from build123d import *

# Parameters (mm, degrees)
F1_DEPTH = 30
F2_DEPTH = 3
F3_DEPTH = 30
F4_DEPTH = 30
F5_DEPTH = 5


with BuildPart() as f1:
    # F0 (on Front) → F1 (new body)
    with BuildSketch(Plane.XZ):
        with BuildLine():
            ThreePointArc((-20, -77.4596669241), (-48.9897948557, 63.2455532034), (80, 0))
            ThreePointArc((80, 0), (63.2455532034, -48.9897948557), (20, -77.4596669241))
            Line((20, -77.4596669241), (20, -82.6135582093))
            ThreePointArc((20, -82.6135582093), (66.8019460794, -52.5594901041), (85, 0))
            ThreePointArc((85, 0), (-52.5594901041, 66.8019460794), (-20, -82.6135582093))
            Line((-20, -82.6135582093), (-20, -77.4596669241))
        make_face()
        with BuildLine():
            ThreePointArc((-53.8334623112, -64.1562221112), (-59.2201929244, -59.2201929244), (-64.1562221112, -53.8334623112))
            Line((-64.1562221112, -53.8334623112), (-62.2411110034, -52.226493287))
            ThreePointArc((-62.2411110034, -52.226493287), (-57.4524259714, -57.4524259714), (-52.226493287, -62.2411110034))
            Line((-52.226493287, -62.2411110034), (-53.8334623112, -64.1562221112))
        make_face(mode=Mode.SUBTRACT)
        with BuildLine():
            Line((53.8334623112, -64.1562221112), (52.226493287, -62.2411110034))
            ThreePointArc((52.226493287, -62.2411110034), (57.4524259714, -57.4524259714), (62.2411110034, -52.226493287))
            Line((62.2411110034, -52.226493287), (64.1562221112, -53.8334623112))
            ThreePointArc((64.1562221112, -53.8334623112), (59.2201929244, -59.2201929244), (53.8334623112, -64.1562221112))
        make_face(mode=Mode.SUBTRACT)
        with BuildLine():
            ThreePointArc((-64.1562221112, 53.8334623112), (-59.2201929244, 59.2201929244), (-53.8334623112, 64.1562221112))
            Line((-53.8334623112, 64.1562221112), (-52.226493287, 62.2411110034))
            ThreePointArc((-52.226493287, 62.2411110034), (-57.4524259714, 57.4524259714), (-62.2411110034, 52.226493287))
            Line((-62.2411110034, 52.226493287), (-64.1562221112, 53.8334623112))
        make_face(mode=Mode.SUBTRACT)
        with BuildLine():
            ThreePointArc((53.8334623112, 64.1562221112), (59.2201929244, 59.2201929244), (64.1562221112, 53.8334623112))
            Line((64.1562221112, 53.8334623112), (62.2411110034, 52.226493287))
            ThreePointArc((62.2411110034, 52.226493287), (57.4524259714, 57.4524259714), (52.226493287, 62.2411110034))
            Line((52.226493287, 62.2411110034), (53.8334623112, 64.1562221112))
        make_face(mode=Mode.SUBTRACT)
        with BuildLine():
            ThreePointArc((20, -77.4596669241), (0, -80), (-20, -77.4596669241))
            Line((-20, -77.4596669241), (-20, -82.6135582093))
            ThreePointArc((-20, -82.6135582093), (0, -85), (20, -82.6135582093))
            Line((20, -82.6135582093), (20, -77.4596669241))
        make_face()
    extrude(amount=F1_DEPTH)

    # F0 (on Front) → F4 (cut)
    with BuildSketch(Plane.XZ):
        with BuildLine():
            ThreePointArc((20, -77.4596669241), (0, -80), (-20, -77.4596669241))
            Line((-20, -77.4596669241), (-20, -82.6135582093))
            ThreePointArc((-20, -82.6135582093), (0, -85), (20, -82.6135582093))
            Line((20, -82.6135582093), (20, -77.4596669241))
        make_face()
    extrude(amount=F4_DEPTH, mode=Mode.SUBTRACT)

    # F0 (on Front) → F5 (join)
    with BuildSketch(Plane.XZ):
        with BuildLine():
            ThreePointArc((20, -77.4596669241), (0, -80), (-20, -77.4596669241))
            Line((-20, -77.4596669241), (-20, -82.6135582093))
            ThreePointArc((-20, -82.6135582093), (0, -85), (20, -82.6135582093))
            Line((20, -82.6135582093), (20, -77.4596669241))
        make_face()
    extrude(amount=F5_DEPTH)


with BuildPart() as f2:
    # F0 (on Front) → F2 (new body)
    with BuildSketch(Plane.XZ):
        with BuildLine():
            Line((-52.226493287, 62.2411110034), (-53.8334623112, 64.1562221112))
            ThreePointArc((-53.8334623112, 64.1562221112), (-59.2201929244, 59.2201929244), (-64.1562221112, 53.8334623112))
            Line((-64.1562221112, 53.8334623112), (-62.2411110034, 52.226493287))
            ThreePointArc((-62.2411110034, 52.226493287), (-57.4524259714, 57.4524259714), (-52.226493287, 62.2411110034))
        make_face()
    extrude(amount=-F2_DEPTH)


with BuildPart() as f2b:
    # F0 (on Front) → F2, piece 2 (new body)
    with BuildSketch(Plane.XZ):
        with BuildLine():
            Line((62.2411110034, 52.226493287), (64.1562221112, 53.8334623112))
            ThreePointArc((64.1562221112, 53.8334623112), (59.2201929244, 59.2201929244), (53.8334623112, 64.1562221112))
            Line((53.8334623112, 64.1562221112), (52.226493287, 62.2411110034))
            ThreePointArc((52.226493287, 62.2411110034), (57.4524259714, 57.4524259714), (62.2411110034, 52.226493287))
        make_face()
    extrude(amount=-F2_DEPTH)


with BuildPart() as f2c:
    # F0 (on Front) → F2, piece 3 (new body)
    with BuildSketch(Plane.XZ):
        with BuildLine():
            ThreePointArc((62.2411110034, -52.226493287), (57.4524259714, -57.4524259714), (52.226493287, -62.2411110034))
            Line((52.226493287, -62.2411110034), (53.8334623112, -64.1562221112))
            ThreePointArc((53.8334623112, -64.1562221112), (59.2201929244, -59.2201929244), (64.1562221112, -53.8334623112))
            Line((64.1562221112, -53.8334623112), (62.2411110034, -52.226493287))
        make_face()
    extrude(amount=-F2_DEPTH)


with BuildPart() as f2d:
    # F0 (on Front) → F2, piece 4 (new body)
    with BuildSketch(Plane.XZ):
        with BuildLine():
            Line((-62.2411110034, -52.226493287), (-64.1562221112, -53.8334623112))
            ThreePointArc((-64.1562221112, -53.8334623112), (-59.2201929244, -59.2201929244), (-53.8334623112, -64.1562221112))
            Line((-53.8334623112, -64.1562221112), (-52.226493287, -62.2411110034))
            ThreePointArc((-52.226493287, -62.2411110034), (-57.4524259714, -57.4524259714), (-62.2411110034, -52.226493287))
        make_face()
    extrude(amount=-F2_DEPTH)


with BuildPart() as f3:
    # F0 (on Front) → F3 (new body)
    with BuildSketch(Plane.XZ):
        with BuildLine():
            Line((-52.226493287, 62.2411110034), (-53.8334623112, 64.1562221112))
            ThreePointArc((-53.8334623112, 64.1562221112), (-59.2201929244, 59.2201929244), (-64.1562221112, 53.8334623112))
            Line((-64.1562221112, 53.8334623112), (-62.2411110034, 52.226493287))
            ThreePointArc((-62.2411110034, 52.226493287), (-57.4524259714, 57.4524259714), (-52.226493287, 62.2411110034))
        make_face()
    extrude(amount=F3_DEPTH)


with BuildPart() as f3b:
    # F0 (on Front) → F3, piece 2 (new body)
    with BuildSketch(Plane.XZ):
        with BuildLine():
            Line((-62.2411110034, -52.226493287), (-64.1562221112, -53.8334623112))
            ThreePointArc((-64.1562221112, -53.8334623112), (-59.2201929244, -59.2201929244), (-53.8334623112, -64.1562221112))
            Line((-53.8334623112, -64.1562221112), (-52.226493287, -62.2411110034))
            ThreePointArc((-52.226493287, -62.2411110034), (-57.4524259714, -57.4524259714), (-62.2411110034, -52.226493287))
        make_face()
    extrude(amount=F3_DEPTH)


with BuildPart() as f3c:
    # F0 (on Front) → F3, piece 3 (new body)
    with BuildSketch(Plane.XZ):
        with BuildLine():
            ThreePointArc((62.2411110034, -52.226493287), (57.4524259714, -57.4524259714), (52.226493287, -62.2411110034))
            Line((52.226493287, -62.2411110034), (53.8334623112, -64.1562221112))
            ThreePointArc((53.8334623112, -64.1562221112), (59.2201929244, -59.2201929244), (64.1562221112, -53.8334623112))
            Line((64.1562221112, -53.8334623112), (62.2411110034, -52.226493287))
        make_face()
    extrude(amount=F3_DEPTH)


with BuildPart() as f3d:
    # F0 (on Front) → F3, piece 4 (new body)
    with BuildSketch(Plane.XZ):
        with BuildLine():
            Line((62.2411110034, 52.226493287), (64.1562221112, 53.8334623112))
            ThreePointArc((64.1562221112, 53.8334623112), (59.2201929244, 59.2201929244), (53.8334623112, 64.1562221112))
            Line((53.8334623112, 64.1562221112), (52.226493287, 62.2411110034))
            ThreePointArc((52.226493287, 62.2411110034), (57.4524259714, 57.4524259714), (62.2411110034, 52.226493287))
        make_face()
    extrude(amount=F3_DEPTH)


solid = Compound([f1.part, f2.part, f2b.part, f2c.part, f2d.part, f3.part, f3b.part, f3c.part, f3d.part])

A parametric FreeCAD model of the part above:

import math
import FreeCAD as App
import Part
import Sketcher
from FreeCAD import Vector
Q = App.Units.Quantity

doc = App.newDocument("Part")
body = doc.addObject("PartDesign::Body", "Body")

sketch1 = body.newObject("Sketcher::SketchObject", "Sketch")
sketch1.AttachmentSupport = (doc.getObject("XZ_Plane"), [""])
sketch1.MapMode = "FlatFace"
sketch1.addGeometry([
    Part.Circle(Vector(0, 0, 0), Vector(0, 0, 1), 85),
    Part.ArcOfCircle(Part.Circle(Vector(0, 0, 0), Vector(0, 0, 1), 80), math.radians(0), math.radians(256)),
    Part.ArcOfCircle(Part.Circle(Vector(0, 0, 0), Vector(0, 0, 1), 80), math.radians(-76), math.radians(0)),
    Part.ArcOfCircle(Part.Circle(Vector(0, 0, 0), Vector(0, 0, 1), 80), math.radians(-104), math.radians(-76)),
    Part.LineSegment(Vector(-52.2, -62.2, 0), Vector(-53.8, -64.2, 0)),
    Part.ArcOfCircle(Part.Circle(Vector(0, 0, 0), Vector(0, 0, 1), 83.7), math.radians(-140), math.radians(-130)),
    Part.LineSegment(Vector(-64.2, -53.8, 0), Vector(-62.2, -52.2, 0)),
    Part.ArcOfCircle(Part.Circle(Vector(0, 0, 0), Vector(0, 0, 1), 81.2), math.radians(-140), math.radians(-130)),
    Part.ArcOfCircle(Part.Circle(Vector(0, 0, 0), Vector(0, 0, 1), 83.7), math.radians(-50), math.radians(-40)),
    Part.LineSegment(Vector(53.8, -64.2, 0), Vector(52.2, -62.2, 0)),
    Part.ArcOfCircle(Part.Circle(Vector(0, 0, 0), Vector(0, 0, 1), 81.2), math.radians(-50), math.radians(-40)),
    Part.LineSegment(Vector(62.2, -52.2, 0), Vector(64.2, -53.8, 0)),
    Part.LineSegment(Vector(-62.2, 52.2, 0), Vector(-64.2, 53.8, 0)),
    Part.ArcOfCircle(Part.Circle(Vector(0, 0, 0), Vector(0, 0, 1), 83.7), math.radians(130), math.radians(140)),
    Part.LineSegment(Vector(-53.8, 64.2, 0), Vector(-52.2, 62.2, 0)),
    Part.ArcOfCircle(Part.Circle(Vector(0, 0, 0), Vector(0, 0, 1), 81.2), math.radians(130), math.radians(140)),
    Part.LineSegment(Vector(52.2, 62.2, 0), Vector(53.8, 64.2, 0)),
    Part.ArcOfCircle(Part.Circle(Vector(0, 0, 0), Vector(0, 0, 1), 83.7), math.radians(40), math.radians(50)),
    Part.LineSegment(Vector(64.2, 53.8, 0), Vector(62.2, 52.2, 0)),
    Part.ArcOfCircle(Part.Circle(Vector(0, 0, 0), Vector(0, 0, 1), 81.2), math.radians(40), math.radians(50)),
], False)
sketch1.addConstraint([
    Sketcher.Constraint("Tangent", 1, 1, 2, 2),
    Sketcher.Constraint("Tangent", 2, 1, 3, 2),
    Sketcher.Constraint("Tangent", 3, 1, 1, 2),
    Sketcher.Constraint("Coincident", 4, 2, 5, 2),
    Sketcher.Constraint("Coincident", 5, 1, 6, 1),
    Sketcher.Constraint("Coincident", 6, 2, 7, 1),
    Sketcher.Constraint("Coincident", 7, 2, 4, 1),
    Sketcher.Constraint("Coincident", 8, 1, 9, 1),
    Sketcher.Constraint("Coincident", 9, 2, 10, 1),
    Sketcher.Constraint("Coincident", 10, 2, 11, 1),
    Sketcher.Constraint("Coincident", 11, 2, 8, 2),
    Sketcher.Constraint("Coincident", 12, 2, 13, 2),
    Sketcher.Constraint("Coincident", 13, 1, 14, 1),
    Sketcher.Constraint("Coincident", 14, 2, 15, 1),
    Sketcher.Constraint("Coincident", 15, 2, 12, 1),
    Sketcher.Constraint("Coincident", 16, 2, 17, 2),
    Sketcher.Constraint("Coincident", 17, 1, 18, 1),
    Sketcher.Constraint("Coincident", 18, 2, 19, 1),
    Sketcher.Constraint("Coincident", 19, 2, 16, 1),
    Sketcher.Constraint("Coincident", 0, 3, -1, 1),
    Sketcher.Constraint("Coincident", 1, 3, -1, 1),
    Sketcher.Constraint("Coincident", 5, 3, -1, 1),
    Sketcher.Constraint("Coincident", 7, 3, -1, 1),
    Sketcher.Constraint("Coincident", 8, 3, -1, 1),
    Sketcher.Constraint("Coincident", 10, 3, -1, 1),
    Sketcher.Constraint("Coincident", 13, 3, -1, 1),
    Sketcher.Constraint("Coincident", 15, 3, -1, 1),
    Sketcher.Constraint("Coincident", 17, 3, -1, 1),
    Sketcher.Constraint("Coincident", 19, 3, -1, 1),
    Sketcher.Constraint("Equal", 5, 8),
    Sketcher.Constraint("Equal", 7, 10),
    Sketcher.Constraint("Equal", 8, 13),
    Sketcher.Constraint("Equal", 10, 15),
    Sketcher.Constraint("Equal", 13, 17),
    Sketcher.Constraint("Equal", 15, 19),
    Sketcher.Constraint("PointOnObject", 1, 1, -1),
    Sketcher.Constraint("Perpendicular", 6, 9),
    Sketcher.Constraint("Perpendicular", 4, 11),
    Sketcher.Constraint("Parallel", 11, 12),
    Sketcher.Constraint("Parallel", 9, 14),
    Sketcher.Constraint("Perpendicular", 12, 16),
    Sketcher.Constraint("Perpendicular", 14, 18),
    Sketcher.Constraint("Horizontal", 2, 1, 3, 1),
    Sketcher.Constraint("Horizontal", 4, 2, 8, 1),
    Sketcher.Constraint("Horizontal", 7, 2, 9, 2),
    Sketcher.Constraint("Horizontal", 6, 2, 10, 2),
    Sketcher.Constraint("Horizontal", 13, 1, 16, 2),
    Sketcher.Constraint("Horizontal", 12, 2, 17, 1),
    Sketcher.Constraint("Vertical", 5, 1, 12, 2),
    Sketcher.Constraint("Vertical", 4, 2, 13, 1),
    Sketcher.Constraint("Diameter", 0, 170.0),
    Sketcher.Constraint("Radius", 1, 80.0),
    Sketcher.Constraint("Angle", 4, Q("-130 deg")),
    Sketcher.Constraint("Radius", 5, 83.75),
    Sketcher.Constraint("Radius", 7, 81.25),
    Sketcher.Constraint("DistanceX", -1, 1, 2, 1, 20.0),
    Sketcher.Constraint("DistanceX", 6, 2, -1, 1, 62.241111),
    Sketcher.Constraint("DistanceY", 7, 2, -1, 1, 62.241111),
])
pad1 = body.newObject("PartDesign::Pad", "Pad")
pad1.Profile = sketch1
pad1.Length = 30

sketch2 = body.newObject("Sketcher::SketchObject", "Sketch001")
sketch2.AttachmentSupport = (doc.getObject("XZ_Plane"), [""])
sketch2.MapMode = "FlatFace"
sketch2.addGeometry([
    Part.ArcOfCircle(Part.Circle(Vector(0, 0, 0), Vector(0, 0, 1), 80), math.radians(-104), math.radians(-76)),
    Part.LineSegment(Vector(-20, -77, 0), Vector(-20, -83, 0)),
    Part.ArcOfCircle(Part.Circle(Vector(0, 0, 0), Vector(0, 0, 1), 85), math.radians(-104), math.radians(-76)),
    Part.LineSegment(Vector(20, -83, 0), Vector(20, -77, 0)),
], False)
sketch2.addConstraint([
    Sketcher.Constraint("Coincident", 0, 1, 1, 1),
    Sketcher.Constraint("Coincident", 1, 2, 2, 1),
    Sketcher.Constraint("Coincident", 2, 2, 3, 1),
    Sketcher.Constraint("Coincident", 3, 2, 0, 2),
    Sketcher.Constraint("Vertical", 1),
    Sketcher.Constraint("Vertical", 3),
    Sketcher.Constraint("Coincident", 0, 3, -1, 1),
    Sketcher.Constraint("Coincident", 2, 3, -1, 1),
    Sketcher.Constraint("Horizontal", 1, 2, 2, 2),
    Sketcher.Constraint("Radius", 0, 80.0),
    Sketcher.Constraint("Radius", 2, 85.0),
    Sketcher.Constraint("DistanceX", 0, 1, -1, 1, 20.0),
])
pocket1 = body.newObject("PartDesign::Pocket", "Pocket")
pocket1.Profile = sketch2
pocket1.Length = 30
pocket1.Reversed = True

sketch3 = body.newObject("Sketcher::SketchObject", "Sketch002")
sketch3.AttachmentSupport = (doc.getObject("XZ_Plane"), [""])
sketch3.MapMode = "FlatFace"
sketch3.addGeometry([
    Part.ArcOfCircle(Part.Circle(Vector(0, 0, 0), Vector(0, 0, 1), 80), math.radians(-104), math.radians(-76)),
    Part.LineSegment(Vector(-20, -77, 0), Vector(-20, -83, 0)),
    Part.ArcOfCircle(Part.Circle(Vector(0, 0, 0), Vector(0, 0, 1), 85), math.radians(-104), math.radians(-76)),
    Part.LineSegment(Vector(20, -83, 0), Vector(20, -77, 0)),
], False)
sketch3.addConstraint([
    Sketcher.Constraint("Coincident", 0, 1, 1, 1),
    Sketcher.Constraint("Coincident", 1, 2, 2, 1),
    Sketcher.Constraint("Coincident", 2, 2, 3, 1),
    Sketcher.Constraint("Coincident", 3, 2, 0, 2),
    Sketcher.Constraint("Vertical", 1),
    Sketcher.Constraint("Vertical", 3),
    Sketcher.Constraint("Coincident", 0, 3, -1, 1),
    Sketcher.Constraint("Coincident", 2, 3, -1, 1),
    Sketcher.Constraint("Horizontal", 1, 2, 2, 2),
    Sketcher.Constraint("Radius", 0, 80.0),
    Sketcher.Constraint("Radius", 2, 85.0),
    Sketcher.Constraint("DistanceX", 0, 1, -1, 1, 20.0),
])
pad2 = body.newObject("PartDesign::Pad", "Pad001")
pad2.Profile = sketch3
pad2.Length = 5
body2 = doc.addObject("PartDesign::Body", "Body001")

sketch4 = body2.newObject("Sketcher::SketchObject", "Sketch003")
sketch4.AttachmentSupport = (doc.getObject("XZ_Plane001"), [""])
sketch4.MapMode = "FlatFace"
sketch4.addGeometry([
    Part.LineSegment(Vector(-52.2, 62.2, 0), Vector(-53.8, 64.2, 0)),
    Part.ArcOfCircle(Part.Circle(Vector(0, 0, 0), Vector(0, 0, 1), 83.7), math.radians(130), math.radians(140)),
    Part.LineSegment(Vector(-64.2, 53.8, 0), Vector(-62.2, 52.2, 0)),
    Part.ArcOfCircle(Part.Circle(Vector(0, 0, 0), Vector(0, 0, 1), 81.2), math.radians(130), math.radians(140)),
], False)
sketch4.addConstraint([
    Sketcher.Constraint("Coincident", 0, 2, 1, 1),
    Sketcher.Constraint("Coincident", 1, 2, 2, 1),
    Sketcher.Constraint("Coincident", 2, 2, 3, 2),
    Sketcher.Constraint("Coincident", 3, 1, 0, 1),
    Sketcher.Constraint("Coincident", 1, 3, -1, 1),
    Sketcher.Constraint("Coincident", 3, 3, -1, 1),
    Sketcher.Constraint("Angle", 0, Q("130 deg")),
    Sketcher.Constraint("Angle", 2, Q("-40 deg")),
    Sketcher.Constraint("Radius", 1, 83.75),
    Sketcher.Constraint("Radius", 3, 81.25),
    Sketcher.Constraint("DistanceX", 2, 2, -1, 1, 62.241111),
    Sketcher.Constraint("DistanceY", -1, 1, 3, 1, 62.241111),
])
pad3 = body2.newObject("PartDesign::Pad", "Pad002")
pad3.Profile = sketch4
pad3.Length = 3
pad3.Reversed = True
body3 = doc.addObject("PartDesign::Body", "Body002")

sketch5 = body3.newObject("Sketcher::SketchObject", "Sketch004")
sketch5.AttachmentSupport = (doc.getObject("XZ_Plane002"), [""])
sketch5.MapMode = "FlatFace"
sketch5.addGeometry([
    Part.LineSegment(Vector(62.2, 52.2, 0), Vector(64.2, 53.8, 0)),
    Part.ArcOfCircle(Part.Circle(Vector(0, 0, 0), Vector(0, 0, 1), 83.7), math.radians(40), math.radians(50)),
    Part.LineSegment(Vector(53.8, 64.2, 0), Vector(52.2, 62.2, 0)),
    Part.ArcOfCircle(Part.Circle(Vector(0, 0, 0), Vector(0, 0, 1), 81.2), math.radians(40), math.radians(50)),
], False)
sketch5.addConstraint([
    Sketcher.Constraint("Coincident", 0, 2, 1, 1),
    Sketcher.Constraint("Coincident", 1, 2, 2, 1),
    Sketcher.Constraint("Coincident", 2, 2, 3, 2),
    Sketcher.Constraint("Coincident", 3, 1, 0, 1),
    Sketcher.Constraint("Coincident", 1, 3, -1, 1),
    Sketcher.Constraint("Coincident", 3, 3, -1, 1),
    Sketcher.Constraint("Angle", 0, Q("40 deg")),
    Sketcher.Constraint("Angle", 2, Q("-130 deg")),
    Sketcher.Constraint("Radius", 1, 83.75),
    Sketcher.Constraint("Radius", 3, 81.25),
    Sketcher.Constraint("DistanceY", -1, 1, 2, 2, 62.241111),
    Sketcher.Constraint("DistanceX", -1, 1, 3, 1, 62.241111),
])
pad4 = body3.newObject("PartDesign::Pad", "Pad003")
pad4.Profile = sketch5
pad4.Length = 3
pad4.Reversed = True
body4 = doc.addObject("PartDesign::Body", "Body003")

sketch6 = body4.newObject("Sketcher::SketchObject", "Sketch005")
sketch6.AttachmentSupport = (doc.getObject("XZ_Plane003"), [""])
sketch6.MapMode = "FlatFace"
sketch6.addGeometry([
    Part.ArcOfCircle(Part.Circle(Vector(0, 0, 0), Vector(0, 0, 1), 81.2), math.radians(-50), math.radians(-40)),
    Part.LineSegment(Vector(52.2, -62.2, 0), Vector(53.8, -64.2, 0)),
    Part.ArcOfCircle(Part.Circle(Vector(0, 0, 0), Vector(0, 0, 1), 83.7), math.radians(-50), math.radians(-40)),
    Part.LineSegment(Vector(64.2, -53.8, 0), Vector(62.2, -52.2, 0)),
], False)
sketch6.addConstraint([
    Sketcher.Constraint("Coincident", 0, 1, 1, 1),
    Sketcher.Constraint("Coincident", 1, 2, 2, 1),
    Sketcher.Constraint("Coincident", 2, 2, 3, 1),
    Sketcher.Constraint("Coincident", 3, 2, 0, 2),
    Sketcher.Constraint("Coincident", 0, 3, -1, 1),
    Sketcher.Constraint("Coincident", 2, 3, -1, 1),
    Sketcher.Constraint("Angle", 1, Q("-50 deg")),
    Sketcher.Constraint("Angle", 3, Q("140 deg")),
    Sketcher.Constraint("Radius", 0, 81.25),
    Sketcher.Constraint("Radius", 2, 83.75),
    Sketcher.Constraint("DistanceY", 0, 1, -1, 1, 62.241111),
    Sketcher.Constraint("DistanceX", -1, 1, 3, 2, 62.241111),
])
pad5 = body4.newObject("PartDesign::Pad", "Pad004")
pad5.Profile = sketch6
pad5.Length = 3
pad5.Reversed = True
body5 = doc.addObject("PartDesign::Body", "Body004")

sketch7 = body5.newObject("Sketcher::SketchObject", "Sketch006")
sketch7.AttachmentSupport = (doc.getObject("XZ_Plane004"), [""])
sketch7.MapMode = "FlatFace"
sketch7.addGeometry([
    Part.LineSegment(Vector(-62.2, -52.2, 0), Vector(-64.2, -53.8, 0)),
    Part.ArcOfCircle(Part.Circle(Vector(0, 0, 0), Vector(0, 0, 1), 83.7), math.radians(-140), math.radians(-130)),
    Part.LineSegment(Vector(-53.8, -64.2, 0), Vector(-52.2, -62.2, 0)),
    Part.ArcOfCircle(Part.Circle(Vector(0, 0, 0), Vector(0, 0, 1), 81.2), math.radians(-140), math.radians(-130)),
], False)
sketch7.addConstraint([
    Sketcher.Constraint("Coincident", 0, 2, 1, 1),
    Sketcher.Constraint("Coincident", 1, 2, 2, 1),
    Sketcher.Constraint("Coincident", 2, 2, 3, 2),
    Sketcher.Constraint("Coincident", 3, 1, 0, 1),
    Sketcher.Constraint("Coincident", 1, 3, -1, 1),
    Sketcher.Constraint("Coincident", 3, 3, -1, 1),
    Sketcher.Constraint("Angle", 0, Q("-140 deg")),
    Sketcher.Constraint("Angle", 2, Q("50 deg")),
    Sketcher.Constraint("Radius", 1, 83.75),
    Sketcher.Constraint("Radius", 3, 81.25),
    Sketcher.Constraint("DistanceY", 2, 2, -1, 1, 62.241111),
    Sketcher.Constraint("DistanceX", 3, 1, -1, 1, 62.241111),
])
pad6 = body5.newObject("PartDesign::Pad", "Pad005")
pad6.Profile = sketch7
pad6.Length = 3
pad6.Reversed = True
body6 = doc.addObject("PartDesign::Body", "Body005")

sketch8 = body6.newObject("Sketcher::SketchObject", "Sketch007")
sketch8.AttachmentSupport = (doc.getObject("XZ_Plane005"), [""])
sketch8.MapMode = "FlatFace"
sketch8.addGeometry([
    Part.LineSegment(Vector(-52.2, 62.2, 0), Vector(-53.8, 64.2, 0)),
    Part.ArcOfCircle(Part.Circle(Vector(0, 0, 0), Vector(0, 0, 1), 83.7), math.radians(130), math.radians(140)),
    Part.LineSegment(Vector(-64.2, 53.8, 0), Vector(-62.2, 52.2, 0)),
    Part.ArcOfCircle(Part.Circle(Vector(0, 0, 0), Vector(0, 0, 1), 81.2), math.radians(130), math.radians(140)),
], False)
sketch8.addConstraint([
    Sketcher.Constraint("Coincident", 0, 2, 1, 1),
    Sketcher.Constraint("Coincident", 1, 2, 2, 1),
    Sketcher.Constraint("Coincident", 2, 2, 3, 2),
    Sketcher.Constraint("Coincident", 3, 1, 0, 1),
    Sketcher.Constraint("Coincident", 1, 3, -1, 1),
    Sketcher.Constraint("Coincident", 3, 3, -1, 1),
    Sketcher.Constraint("Angle", 0, Q("130 deg")),
    Sketcher.Constraint("Angle", 2, Q("-40 deg")),
    Sketcher.Constraint("Radius", 1, 83.75),
    Sketcher.Constraint("Radius", 3, 81.25),
    Sketcher.Constraint("DistanceX", 2, 2, -1, 1, 62.241111),
    Sketcher.Constraint("DistanceY", -1, 1, 3, 1, 62.241111),
])
pad7 = body6.newObject("PartDesign::Pad", "Pad006")
pad7.Profile = sketch8
pad7.Length = 30
body7 = doc.addObject("PartDesign::Body", "Body006")

sketch9 = body7.newObject("Sketcher::SketchObject", "Sketch008")
sketch9.AttachmentSupport = (doc.getObject("XZ_Plane006"), [""])
sketch9.MapMode = "FlatFace"
sketch9.addGeometry([
    Part.LineSegment(Vector(-62.2, -52.2, 0), Vector(-64.2, -53.8, 0)),
    Part.ArcOfCircle(Part.Circle(Vector(0, 0, 0), Vector(0, 0, 1), 83.7), math.radians(-140), math.radians(-130)),
    Part.LineSegment(Vector(-53.8, -64.2, 0), Vector(-52.2, -62.2, 0)),
    Part.ArcOfCircle(Part.Circle(Vector(0, 0, 0), Vector(0, 0, 1), 81.2), math.radians(-140), math.radians(-130)),
], False)
sketch9.addConstraint([
    Sketcher.Constraint("Coincident", 0, 2, 1, 1),
    Sketcher.Constraint("Coincident", 1, 2, 2, 1),
    Sketcher.Constraint("Coincident", 2, 2, 3, 2),
    Sketcher.Constraint("Coincident", 3, 1, 0, 1),
    Sketcher.Constraint("Coincident", 1, 3, -1, 1),
    Sketcher.Constraint("Coincident", 3, 3, -1, 1),
    Sketcher.Constraint("Angle", 0, Q("-140 deg")),
    Sketcher.Constraint("Angle", 2, Q("50 deg")),
    Sketcher.Constraint("Radius", 1, 83.75),
    Sketcher.Constraint("Radius", 3, 81.25),
    Sketcher.Constraint("DistanceY", 2, 2, -1, 1, 62.241111),
    Sketcher.Constraint("DistanceX", 3, 1, -1, 1, 62.241111),
])
pad8 = body7.newObject("PartDesign::Pad", "Pad007")
pad8.Profile = sketch9
pad8.Length = 30
body8 = doc.addObject("PartDesign::Body", "Body007")

sketch10 = body8.newObject("Sketcher::SketchObject", "Sketch009")
sketch10.AttachmentSupport = (doc.getObject("XZ_Plane007"), [""])
sketch10.MapMode = "FlatFace"
sketch10.addGeometry([
    Part.ArcOfCircle(Part.Circle(Vector(0, 0, 0), Vector(0, 0, 1), 81.2), math.radians(-50), math.radians(-40)),
    Part.LineSegment(Vector(52.2, -62.2, 0), Vector(53.8, -64.2, 0)),
    Part.ArcOfCircle(Part.Circle(Vector(0, 0, 0), Vector(0, 0, 1), 83.7), math.radians(-50), math.radians(-40)),
    Part.LineSegment(Vector(64.2, -53.8, 0), Vector(62.2, -52.2, 0)),
], False)
sketch10.addConstraint([
    Sketcher.Constraint("Coincident", 0, 1, 1, 1),
    Sketcher.Constraint("Coincident", 1, 2, 2, 1),
    Sketcher.Constraint("Coincident", 2, 2, 3, 1),
    Sketcher.Constraint("Coincident", 3, 2, 0, 2),
    Sketcher.Constraint("Coincident", 0, 3, -1, 1),
    Sketcher.Constraint("Coincident", 2, 3, -1, 1),
    Sketcher.Constraint("Angle", 1, Q("-50 deg")),
    Sketcher.Constraint("Angle", 3, Q("140 deg")),
    Sketcher.Constraint("Radius", 0, 81.25),
    Sketcher.Constraint("Radius", 2, 83.75),
    Sketcher.Constraint("DistanceY", 0, 1, -1, 1, 62.241111),
    Sketcher.Constraint("DistanceX", -1, 1, 3, 2, 62.241111),
])
pad9 = body8.newObject("PartDesign::Pad", "Pad008")
pad9.Profile = sketch10
pad9.Length = 30
body9 = doc.addObject("PartDesign::Body", "Body008")

sketch11 = body9.newObject("Sketcher::SketchObject", "Sketch010")
sketch11.AttachmentSupport = (doc.getObject("XZ_Plane008"), [""])
sketch11.MapMode = "FlatFace"
sketch11.addGeometry([
    Part.LineSegment(Vector(62.2, 52.2, 0), Vector(64.2, 53.8, 0)),
    Part.ArcOfCircle(Part.Circle(Vector(0, 0, 0), Vector(0, 0, 1), 83.7), math.radians(40), math.radians(50)),
    Part.LineSegment(Vector(53.8, 64.2, 0), Vector(52.2, 62.2, 0)),
    Part.ArcOfCircle(Part.Circle(Vector(0, 0, 0), Vector(0, 0, 1), 81.2), math.radians(40), math.radians(50)),
], False)
sketch11.addConstraint([
    Sketcher.Constraint("Coincident", 0, 2, 1, 1),
    Sketcher.Constraint("Coincident", 1, 2, 2, 1),
    Sketcher.Constraint("Coincident", 2, 2, 3, 2),
    Sketcher.Constraint("Coincident", 3, 1, 0, 1),
    Sketcher.Constraint("Coincident", 1, 3, -1, 1),
    Sketcher.Constraint("Coincident", 3, 3, -1, 1),
    Sketcher.Constraint("Angle", 0, Q("40 deg")),
    Sketcher.Constraint("Angle", 2, Q("-130 deg")),
    Sketcher.Constraint("Radius", 1, 83.75),
    Sketcher.Constraint("Radius", 3, 81.25),
    Sketcher.Constraint("DistanceY", -1, 1, 2, 2, 62.241111),
    Sketcher.Constraint("DistanceX", -1, 1, 3, 1, 62.241111),
])
pad10 = body9.newObject("PartDesign::Pad", "Pad009")
pad10.Profile = sketch11
pad10.Length = 30

doc.recompute()
